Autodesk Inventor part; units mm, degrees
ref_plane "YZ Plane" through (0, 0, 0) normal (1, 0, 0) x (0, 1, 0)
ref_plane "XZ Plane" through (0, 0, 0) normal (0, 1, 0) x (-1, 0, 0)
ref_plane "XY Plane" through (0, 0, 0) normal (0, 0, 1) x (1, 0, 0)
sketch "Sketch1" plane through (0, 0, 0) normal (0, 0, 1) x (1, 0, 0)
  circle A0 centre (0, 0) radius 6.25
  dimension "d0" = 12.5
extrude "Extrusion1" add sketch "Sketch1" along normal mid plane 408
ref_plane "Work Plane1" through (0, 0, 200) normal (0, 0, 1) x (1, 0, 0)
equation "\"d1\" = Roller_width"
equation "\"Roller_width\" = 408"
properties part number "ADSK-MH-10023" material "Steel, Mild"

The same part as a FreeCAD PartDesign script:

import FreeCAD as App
import Part
import Sketcher

V = App.Vector

doc = App.newDocument("Part")
body = doc.addObject("PartDesign::Body", "Body")

sketch1 = doc.addObject("Sketcher::SketchObject", "Sketch")
body.addObject(sketch1)
sketch1.AttachmentSupport = (doc.XY_Plane, [""])
sketch1.MapMode = "FlatFace"
sketch1.addGeometry(Part.Circle(V(0, 0, 0), V(0, 0, 1), 6), False)
sketch1.addConstraint(Sketcher.Constraint("Coincident", 0, 3, -1, 1))
sketch1.addConstraint(Sketcher.Constraint("Diameter", 0, 12.5))
pad1 = doc.addObject("PartDesign::Pad", "Pad")
body.addObject(pad1)
pad1.Profile = sketch1
pad1.Length = 408
pad1.Midplane = True

doc.recompute()
